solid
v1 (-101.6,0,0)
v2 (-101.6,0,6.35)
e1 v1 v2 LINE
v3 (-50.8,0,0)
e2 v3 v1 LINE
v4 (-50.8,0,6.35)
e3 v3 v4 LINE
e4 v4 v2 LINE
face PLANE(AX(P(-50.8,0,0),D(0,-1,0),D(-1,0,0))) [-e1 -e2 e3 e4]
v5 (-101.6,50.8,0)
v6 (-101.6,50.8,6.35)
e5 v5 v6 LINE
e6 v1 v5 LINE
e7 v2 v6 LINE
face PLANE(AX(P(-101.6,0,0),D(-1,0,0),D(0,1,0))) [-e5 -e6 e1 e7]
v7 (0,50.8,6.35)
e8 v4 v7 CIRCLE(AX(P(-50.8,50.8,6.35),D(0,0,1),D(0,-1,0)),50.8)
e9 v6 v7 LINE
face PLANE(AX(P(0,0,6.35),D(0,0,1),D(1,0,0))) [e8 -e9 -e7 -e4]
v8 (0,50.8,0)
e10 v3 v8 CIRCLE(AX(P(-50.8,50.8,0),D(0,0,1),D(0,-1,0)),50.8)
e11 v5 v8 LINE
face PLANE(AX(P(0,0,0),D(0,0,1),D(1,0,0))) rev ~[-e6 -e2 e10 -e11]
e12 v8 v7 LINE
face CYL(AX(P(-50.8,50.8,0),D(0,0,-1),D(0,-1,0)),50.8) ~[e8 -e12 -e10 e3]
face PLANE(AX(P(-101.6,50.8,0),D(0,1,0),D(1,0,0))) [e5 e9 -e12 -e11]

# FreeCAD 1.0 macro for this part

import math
import FreeCAD as App
import Part
import Sketcher
Q = App.Units.Quantity

doc = App.newDocument("Part")
params = doc.addObject("Spreadsheet::Sheet", "Params")
for row, (alias, value) in enumerate([
    ("sketch1_radius", "2 in"),
    ("sketch1_width", "2 in"),
    ("pad1_length", "0.25 in"),
], start=1):
    params.set(f"A{row}", alias)
    params.set(f"B{row}", "=" + value)
    params.setAlias(f"B{row}", alias)

body = doc.addObject("PartDesign::Body", "Body")

# Sketch on XY plane
sketch1 = doc.addObject("Sketcher::SketchObject", "Sketch")
body.addObject(sketch1)
sketch1.AttachmentSupport = (doc.XY_Plane, [""])
sketch1.MapMode = "FlatFace"
sketch1.addGeometry(Part.LineSegment(App.Vector(-101.6, 0, 0), App.Vector(-50.8, 0, 0)), False)
sketch1.addGeometry(Part.ArcOfCircle(Part.Circle(App.Vector(-50.8, 50.8, 0), App.Vector(0, 0, 1), 50.8), math.radians(-90), math.radians(0)), False)
sketch1.addGeometry(Part.LineSegment(App.Vector(0, 50.8, 0), App.Vector(-101.6, 50.8, 0)), False)
sketch1.addGeometry(Part.LineSegment(App.Vector(-101.6, 50.8, 0), App.Vector(-101.6, 0, 0)), False)
sketch1.addConstraint(Sketcher.Constraint("Tangent", 0, 2, 1, 1))
sketch1.addConstraint(Sketcher.Constraint("Coincident", 1, 2, 2, 1))
sketch1.addConstraint(Sketcher.Constraint("Coincident", 2, 2, 3, 1))
sketch1.addConstraint(Sketcher.Constraint("Coincident", 3, 2, 0, 1))
sketch1.addConstraint(Sketcher.Constraint("Horizontal", 0))
sketch1.addConstraint(Sketcher.Constraint("Horizontal", 2))
sketch1.addConstraint(Sketcher.Constraint("Vertical", 3))
sketch1.addConstraint(Sketcher.Constraint("PointOnObject", 0, 2, -1))
sketch1.addConstraint(Sketcher.Constraint("PointOnObject", 1, 2, -2))
sketch1.addConstraint(Sketcher.Constraint("Equal", 0, 3))
sketch1.addConstraint(Sketcher.Constraint("Radius", 1, Q("2 in")))
sketch1.addConstraint(Sketcher.Constraint("DistanceX", 0, 1, 0, 2, Q("2 in")))
sketch1.setExpression("Constraints[10]", "Params.sketch1_radius")
sketch1.setExpression("Constraints[11]", "Params.sketch1_width")
pad1 = doc.addObject("PartDesign::Pad", "Pad")
body.addObject(pad1)
pad1.Profile = sketch1
pad1.setExpression("Length", "Params.pad1_length")

doc.recompute()
